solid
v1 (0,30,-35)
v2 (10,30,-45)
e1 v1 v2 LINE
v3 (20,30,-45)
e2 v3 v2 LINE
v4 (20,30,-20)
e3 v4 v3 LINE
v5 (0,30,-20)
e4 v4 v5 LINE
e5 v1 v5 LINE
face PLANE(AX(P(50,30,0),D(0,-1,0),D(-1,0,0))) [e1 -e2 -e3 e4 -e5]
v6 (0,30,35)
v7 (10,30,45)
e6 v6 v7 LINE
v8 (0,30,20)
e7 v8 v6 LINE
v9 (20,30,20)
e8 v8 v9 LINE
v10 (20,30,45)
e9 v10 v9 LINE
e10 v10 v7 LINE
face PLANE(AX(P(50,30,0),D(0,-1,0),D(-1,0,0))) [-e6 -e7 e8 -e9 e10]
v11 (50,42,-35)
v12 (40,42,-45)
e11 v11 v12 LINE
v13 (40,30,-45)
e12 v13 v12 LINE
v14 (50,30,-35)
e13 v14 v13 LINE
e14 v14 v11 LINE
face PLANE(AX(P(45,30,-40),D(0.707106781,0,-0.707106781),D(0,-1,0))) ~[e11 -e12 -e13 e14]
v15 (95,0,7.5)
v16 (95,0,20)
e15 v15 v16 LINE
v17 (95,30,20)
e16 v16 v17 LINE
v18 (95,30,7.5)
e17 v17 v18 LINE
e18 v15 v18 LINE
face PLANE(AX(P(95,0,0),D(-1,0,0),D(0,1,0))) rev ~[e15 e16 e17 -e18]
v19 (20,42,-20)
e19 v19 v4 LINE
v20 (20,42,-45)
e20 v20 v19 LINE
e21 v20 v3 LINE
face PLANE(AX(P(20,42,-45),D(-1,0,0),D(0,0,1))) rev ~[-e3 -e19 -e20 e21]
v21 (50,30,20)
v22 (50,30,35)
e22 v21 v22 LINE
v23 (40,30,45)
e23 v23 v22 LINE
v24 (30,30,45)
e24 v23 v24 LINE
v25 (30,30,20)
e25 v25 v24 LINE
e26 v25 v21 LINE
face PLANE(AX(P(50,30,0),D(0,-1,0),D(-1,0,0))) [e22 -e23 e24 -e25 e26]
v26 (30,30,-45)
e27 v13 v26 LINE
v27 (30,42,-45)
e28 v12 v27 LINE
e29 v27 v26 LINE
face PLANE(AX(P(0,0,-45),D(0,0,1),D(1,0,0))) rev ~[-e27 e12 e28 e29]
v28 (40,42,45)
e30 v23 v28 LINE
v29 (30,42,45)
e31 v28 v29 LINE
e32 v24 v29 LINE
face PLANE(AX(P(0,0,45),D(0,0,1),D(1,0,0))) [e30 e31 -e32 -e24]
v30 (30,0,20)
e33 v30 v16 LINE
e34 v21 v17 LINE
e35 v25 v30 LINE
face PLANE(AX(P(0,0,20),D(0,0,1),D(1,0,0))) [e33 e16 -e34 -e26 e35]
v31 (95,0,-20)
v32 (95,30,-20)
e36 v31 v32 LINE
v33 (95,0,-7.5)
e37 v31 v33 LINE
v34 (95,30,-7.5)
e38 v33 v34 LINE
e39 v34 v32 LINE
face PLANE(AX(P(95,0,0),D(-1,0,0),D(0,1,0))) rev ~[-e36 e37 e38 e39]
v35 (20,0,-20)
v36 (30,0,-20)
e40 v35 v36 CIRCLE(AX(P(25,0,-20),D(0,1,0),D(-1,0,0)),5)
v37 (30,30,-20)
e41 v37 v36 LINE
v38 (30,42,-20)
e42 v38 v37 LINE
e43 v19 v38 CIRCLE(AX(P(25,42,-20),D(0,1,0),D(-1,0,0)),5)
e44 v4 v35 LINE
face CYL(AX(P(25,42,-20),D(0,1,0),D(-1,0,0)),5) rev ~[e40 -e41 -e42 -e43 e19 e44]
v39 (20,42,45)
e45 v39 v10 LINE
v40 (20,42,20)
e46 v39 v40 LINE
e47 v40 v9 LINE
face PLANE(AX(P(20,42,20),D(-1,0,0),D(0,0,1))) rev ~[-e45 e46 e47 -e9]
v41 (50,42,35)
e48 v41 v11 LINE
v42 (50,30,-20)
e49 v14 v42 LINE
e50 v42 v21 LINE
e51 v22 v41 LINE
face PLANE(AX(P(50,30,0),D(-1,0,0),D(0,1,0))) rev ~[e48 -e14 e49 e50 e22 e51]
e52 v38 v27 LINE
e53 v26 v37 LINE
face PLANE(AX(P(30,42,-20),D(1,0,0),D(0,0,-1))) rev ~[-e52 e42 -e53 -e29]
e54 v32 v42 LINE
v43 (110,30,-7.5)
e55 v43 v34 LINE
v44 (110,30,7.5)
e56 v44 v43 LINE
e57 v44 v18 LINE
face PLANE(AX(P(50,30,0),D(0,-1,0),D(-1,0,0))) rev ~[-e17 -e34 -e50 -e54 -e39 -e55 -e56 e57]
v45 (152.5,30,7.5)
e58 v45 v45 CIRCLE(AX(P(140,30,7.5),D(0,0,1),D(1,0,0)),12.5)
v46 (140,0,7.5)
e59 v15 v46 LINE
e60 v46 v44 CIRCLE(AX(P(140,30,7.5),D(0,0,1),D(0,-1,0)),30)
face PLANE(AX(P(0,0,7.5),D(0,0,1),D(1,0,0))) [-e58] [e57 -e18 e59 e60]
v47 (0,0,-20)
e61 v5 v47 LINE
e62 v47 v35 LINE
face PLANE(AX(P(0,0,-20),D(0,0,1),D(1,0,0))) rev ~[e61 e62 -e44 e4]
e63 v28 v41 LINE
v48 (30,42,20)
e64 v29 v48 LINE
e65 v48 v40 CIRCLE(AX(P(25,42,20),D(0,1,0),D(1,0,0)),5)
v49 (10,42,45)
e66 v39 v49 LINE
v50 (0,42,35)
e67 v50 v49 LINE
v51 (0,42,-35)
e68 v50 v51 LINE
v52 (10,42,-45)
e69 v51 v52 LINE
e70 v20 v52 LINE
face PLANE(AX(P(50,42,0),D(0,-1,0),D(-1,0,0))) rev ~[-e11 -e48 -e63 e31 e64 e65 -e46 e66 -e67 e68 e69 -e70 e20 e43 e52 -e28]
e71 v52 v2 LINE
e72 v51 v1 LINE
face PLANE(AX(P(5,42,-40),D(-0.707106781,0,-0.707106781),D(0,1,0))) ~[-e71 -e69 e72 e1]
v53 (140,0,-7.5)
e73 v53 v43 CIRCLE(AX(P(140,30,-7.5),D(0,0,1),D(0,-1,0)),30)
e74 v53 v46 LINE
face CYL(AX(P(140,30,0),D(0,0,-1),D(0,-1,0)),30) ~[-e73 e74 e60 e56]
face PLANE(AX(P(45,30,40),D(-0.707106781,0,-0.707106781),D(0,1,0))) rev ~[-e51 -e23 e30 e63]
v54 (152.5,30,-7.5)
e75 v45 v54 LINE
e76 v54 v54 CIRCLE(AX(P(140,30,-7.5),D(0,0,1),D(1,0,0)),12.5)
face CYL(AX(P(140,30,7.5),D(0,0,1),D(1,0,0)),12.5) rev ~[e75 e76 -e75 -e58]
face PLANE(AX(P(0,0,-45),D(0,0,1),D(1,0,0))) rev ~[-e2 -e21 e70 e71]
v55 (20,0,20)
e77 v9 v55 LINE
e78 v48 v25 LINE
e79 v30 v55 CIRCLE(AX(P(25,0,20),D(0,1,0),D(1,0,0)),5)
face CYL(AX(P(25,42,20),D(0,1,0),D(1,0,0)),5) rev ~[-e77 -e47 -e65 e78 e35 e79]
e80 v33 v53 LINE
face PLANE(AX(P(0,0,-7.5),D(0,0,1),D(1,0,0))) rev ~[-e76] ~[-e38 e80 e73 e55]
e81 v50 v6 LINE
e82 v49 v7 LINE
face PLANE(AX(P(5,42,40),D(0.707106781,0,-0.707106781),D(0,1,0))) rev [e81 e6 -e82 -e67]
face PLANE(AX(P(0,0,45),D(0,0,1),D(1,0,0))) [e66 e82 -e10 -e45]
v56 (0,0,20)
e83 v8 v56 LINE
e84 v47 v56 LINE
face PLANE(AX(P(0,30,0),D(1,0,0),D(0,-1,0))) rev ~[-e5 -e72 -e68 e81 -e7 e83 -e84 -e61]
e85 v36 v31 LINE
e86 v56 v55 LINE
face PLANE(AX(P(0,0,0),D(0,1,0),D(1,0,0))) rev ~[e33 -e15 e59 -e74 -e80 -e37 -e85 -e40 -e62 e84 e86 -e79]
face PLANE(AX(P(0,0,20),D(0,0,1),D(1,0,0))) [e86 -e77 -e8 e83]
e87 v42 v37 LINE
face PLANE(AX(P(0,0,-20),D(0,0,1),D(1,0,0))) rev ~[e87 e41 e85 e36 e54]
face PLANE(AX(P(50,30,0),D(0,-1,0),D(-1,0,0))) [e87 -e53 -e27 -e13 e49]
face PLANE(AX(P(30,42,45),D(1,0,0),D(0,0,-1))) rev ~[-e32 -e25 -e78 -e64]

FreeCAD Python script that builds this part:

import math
import FreeCAD as App
import Part
import Sketcher
from FreeCAD import Vector
Q = App.Units.Quantity


def edges_at(feature, points):
    """Names of the edges that pass closest to the given points."""
    edges = feature.Shape.Edges
    near = lambda p: min(range(len(edges)), key=lambda i: edges[i].distToShape(Part.Vertex(*p))[0])
    return sorted({f"Edge{near(p) + 1}" for p in points})

doc = App.newDocument("Part")
body = doc.addObject("PartDesign::Body", "Body")

# Sketch on XY plane
sketch1 = doc.addObject("Sketcher::SketchObject", "Sketch")
body.addObject(sketch1)
sketch1.AttachmentSupport = (doc.XY_Plane, [""])
sketch1.MapMode = "FlatFace"
sketch1.addGeometry([
    Part.LineSegment(Vector(0, 30, 0), Vector(0, 0, 0)),
    Part.LineSegment(Vector(0, 0, 0), Vector(95, 0, 0)),
    Part.LineSegment(Vector(95, 0, 0), Vector(95, 30, 0)),
    Part.LineSegment(Vector(95, 30, 0), Vector(0, 30, 0)),
], False)
sketch1.addConstraint([
    Sketcher.Constraint("Coincident", 0, 2, 1, 1),
    Sketcher.Constraint("Coincident", 1, 2, 2, 1),
    Sketcher.Constraint("Coincident", 2, 2, 3, 1),
    Sketcher.Constraint("Coincident", 3, 2, 0, 1),
    Sketcher.Constraint("Vertical", 0),
    Sketcher.Constraint("Horizontal", 1),
    Sketcher.Constraint("Vertical", 2),
    Sketcher.Constraint("Horizontal", 3),
    Sketcher.Constraint("Coincident", 0, 2, -1, 1),
    Sketcher.Constraint("DistanceX", 1, 1, 1, 2, Q("95 mm")),
    Sketcher.Constraint("DistanceY", 0, 2, 0, 1, Q("30 mm")),
])
pad1 = doc.addObject("PartDesign::Pad", "Pad")
body.addObject(pad1)
pad1.Profile = sketch1
pad1.Length = 40
pad1.Midplane = True

# Sketch on XY plane
sketch2 = doc.addObject("Sketcher::SketchObject", "Sketch001")
body.addObject(sketch2)
sketch2.AttachmentSupport = (doc.XY_Plane, [""])
sketch2.MapMode = "FlatFace"
sketch2.addGeometry([
    Part.LineSegment(Vector(95, 30, 0), Vector(95, 0, 0)),
    Part.LineSegment(Vector(95, 0, 0), Vector(140, 0, 0)),
    Part.ArcOfCircle(Part.Circle(Vector(140, 30, 0), Vector(0, 0, 1), 30), math.radians(-90), math.radians(180)),
    Part.LineSegment(Vector(110, 30, 0), Vector(95, 30, 0)),
], False)
sketch2.addConstraint([
    Sketcher.Constraint("Coincident", 0, 2, 1, 1),
    Sketcher.Constraint("Tangent", 1, 2, 2, 1),
    Sketcher.Constraint("Coincident", 2, 2, 3, 1),
    Sketcher.Constraint("Coincident", 3, 2, 0, 1),
    Sketcher.Constraint("Vertical", 0),
    Sketcher.Constraint("Horizontal", 1),
    Sketcher.Constraint("Horizontal", 3),
    Sketcher.Constraint("PointOnObject", 0, 2, -1),
    Sketcher.Constraint("Radius", 2, Q("30 mm")),
    Sketcher.Constraint("DistanceY", 0, 2, 0, 1, Q("30 mm")),
    Sketcher.Constraint("DistanceX", -1, 1, 2, 3, Q("140 mm")),
    Sketcher.Constraint("DistanceX", -1, 1, 0, 2, Q("95 mm")),
])
pad2 = doc.addObject("PartDesign::Pad", "Pad001")
body.addObject(pad2)
pad2.Profile = sketch2
pad2.Length = 15
pad2.Midplane = True

# Sketch on XY plane
sketch3 = doc.addObject("Sketcher::SketchObject", "Sketch002")
body.addObject(sketch3)
sketch3.AttachmentSupport = (doc.XY_Plane, [""])
sketch3.MapMode = "FlatFace"
sketch3.addGeometry([
    Part.LineSegment(Vector(0, 42, 0), Vector(0, 30, 0)),
    Part.LineSegment(Vector(0, 30, 0), Vector(50, 30, 0)),
    Part.LineSegment(Vector(50, 30, 0), Vector(50, 42, 0)),
    Part.LineSegment(Vector(50, 42, 0), Vector(0, 42, 0)),
], False)
sketch3.addConstraint([
    Sketcher.Constraint("Coincident", 0, 2, 1, 1),
    Sketcher.Constraint("Coincident", 1, 2, 2, 1),
    Sketcher.Constraint("Coincident", 2, 2, 3, 1),
    Sketcher.Constraint("Coincident", 3, 2, 0, 1),
    Sketcher.Constraint("Vertical", 0),
    Sketcher.Constraint("Horizontal", 1),
    Sketcher.Constraint("Vertical", 2),
    Sketcher.Constraint("Horizontal", 3),
    Sketcher.Constraint("PointOnObject", 0, 2, -2),
    Sketcher.Constraint("DistanceX", 1, 1, 1, 2, Q("50 mm")),
    Sketcher.Constraint("DistanceY", 0, 2, 0, 1, Q("12 mm")),
    Sketcher.Constraint("DistanceY", -1, 1, 0, 2, Q("30 mm")),
])
pad3 = doc.addObject("PartDesign::Pad", "Pad002")
body.addObject(pad3)
pad3.Profile = sketch3
pad3.Length = 90
pad3.Midplane = True

# Sketch on XZ plane
sketch4 = doc.addObject("Sketcher::SketchObject", "Sketch003")
body.addObject(sketch4)
sketch4.AttachmentSupport = (doc.XZ_Plane, [""])
sketch4.MapMode = "FlatFace"
sketch4.AttachmentOffset = App.Placement(Vector(0, 0, -42), App.Rotation())
sketch4.addGeometry([
    Part.LineSegment(Vector(20, 20, 0), Vector(20, 70, 0)),
    Part.ArcOfCircle(Part.Circle(Vector(25, 70, 0), Vector(0, 0, 1), 5), math.radians(0), math.radians(180)),
    Part.LineSegment(Vector(30, 70, 0), Vector(30, 20, 0)),
    Part.ArcOfCircle(Part.Circle(Vector(25, 20, 0), Vector(0, 0, 1), 5), math.radians(180), math.radians(360)),
], False)
sketch4.addConstraint([
    Sketcher.Constraint("Tangent", 0, 2, 1, 2),
    Sketcher.Constraint("Tangent", 1, 1, 2, 1),
    Sketcher.Constraint("Tangent", 2, 2, 3, 2),
    Sketcher.Constraint("Tangent", 3, 1, 0, 1),
    Sketcher.Constraint("Vertical", 0),
    Sketcher.Constraint("Vertical", 2),
    Sketcher.Constraint("Radius", 1, Q("5 mm")),
    Sketcher.Constraint("DistanceX", -1, 1, 1, 3, Q("25 mm")),
    Sketcher.Constraint("DistanceY", 0, 1, 0, 2, Q("50 mm")),
    Sketcher.Constraint("DistanceY", -1, 1, 1, 3, Q("70 mm")),
])
pocket1 = doc.addObject("PartDesign::Pocket", "Pocket")
body.addObject(pocket1)
pocket1.Profile = sketch4
pocket1.Type = "ThroughAll"
pocket1.Reversed = True

# Sketch on XZ plane
sketch5 = doc.addObject("Sketcher::SketchObject", "Sketch004")
body.addObject(sketch5)
sketch5.AttachmentSupport = (doc.XZ_Plane, [""])
sketch5.MapMode = "FlatFace"
sketch5.AttachmentOffset = App.Placement(Vector(0, 0, -42), App.Rotation())
sketch5.addGeometry([
    Part.LineSegment(Vector(30, -20, 0), Vector(30, -45, 0)),
    Part.LineSegment(Vector(30, -45, 0), Vector(20, -45, 0)),
    Part.LineSegment(Vector(20, -45, 0), Vector(20, -20, 0)),
    Part.ArcOfCircle(Part.Circle(Vector(25, -20, 0), Vector(0, 0, 1), 5), math.radians(0), math.radians(180)),
], False)
sketch5.addConstraint([
    Sketcher.Constraint("Coincident", 0, 2, 1, 1),
    Sketcher.Constraint("Coincident", 1, 2, 2, 1),
    Sketcher.Constraint("Tangent", 2, 2, 3, 2),
    Sketcher.Constraint("Tangent", 3, 1, 0, 1),
    Sketcher.Constraint("Vertical", 0),
    Sketcher.Constraint("Horizontal", 1),
    Sketcher.Constraint("Vertical", 2),
    Sketcher.Constraint("Radius", 3, Q("5 mm")),
    Sketcher.Constraint("DistanceY", 0, 2, 0, 1, Q("25 mm")),
    Sketcher.Constraint("DistanceX", -1, 1, 3, 3, Q("25 mm")),
    Sketcher.Constraint("DistanceY", 3, 3, -1, 1, Q("20 mm")),
])
pocket2 = doc.addObject("PartDesign::Pocket", "Pocket001")
body.addObject(pocket2)
pocket2.Profile = sketch5
pocket2.Type = "ThroughAll"
pocket2.Reversed = True
doc.recompute()

chamfer = doc.addObject("PartDesign::Chamfer", "Chamfer")
body.addObject(chamfer)
chamfer.Base = (pocket2, edges_at(pocket2, [(0, 36, 45)]))
chamfer.Size = 10
doc.recompute()

chamfer2 = doc.addObject("PartDesign::Chamfer", "Chamfer001")
body.addObject(chamfer2)
chamfer2.Base = (chamfer, edges_at(chamfer, [(50, 36, 45)]))
chamfer2.Size = 10
doc.recompute()

chamfer3 = doc.addObject("PartDesign::Chamfer", "Chamfer002")
body.addObject(chamfer3)
chamfer3.Base = (chamfer2, edges_at(chamfer2, [(0, 36, -45), (50, 36, -45)]))
chamfer3.Size = 10

# Sketch on XY plane
sketch6 = doc.addObject("Sketcher::SketchObject", "Sketch005")
body.addObject(sketch6)
sketch6.AttachmentSupport = (doc.XY_Plane, [""])
sketch6.MapMode = "FlatFace"
sketch6.AttachmentOffset = App.Placement(Vector(0, 0, 7.5), App.Rotation())
sketch6.addGeometry(Part.Circle(Vector(140, 30, 0), Vector(0, 0, 1), 12), False)
sketch6.addConstraint([
    Sketcher.Constraint("Diameter", 0, Q("25 mm")),
    Sketcher.Constraint("DistanceX", -1, 1, 0, 3, Q("140 mm")),
    Sketcher.Constraint("DistanceY", -1, 1, 0, 3, Q("30 mm")),
])
pocket3 = doc.addObject("PartDesign::Pocket", "Pocket002")
body.addObject(pocket3)
pocket3.Profile = sketch6
pocket3.Type = "ThroughAll"

doc.recompute()
